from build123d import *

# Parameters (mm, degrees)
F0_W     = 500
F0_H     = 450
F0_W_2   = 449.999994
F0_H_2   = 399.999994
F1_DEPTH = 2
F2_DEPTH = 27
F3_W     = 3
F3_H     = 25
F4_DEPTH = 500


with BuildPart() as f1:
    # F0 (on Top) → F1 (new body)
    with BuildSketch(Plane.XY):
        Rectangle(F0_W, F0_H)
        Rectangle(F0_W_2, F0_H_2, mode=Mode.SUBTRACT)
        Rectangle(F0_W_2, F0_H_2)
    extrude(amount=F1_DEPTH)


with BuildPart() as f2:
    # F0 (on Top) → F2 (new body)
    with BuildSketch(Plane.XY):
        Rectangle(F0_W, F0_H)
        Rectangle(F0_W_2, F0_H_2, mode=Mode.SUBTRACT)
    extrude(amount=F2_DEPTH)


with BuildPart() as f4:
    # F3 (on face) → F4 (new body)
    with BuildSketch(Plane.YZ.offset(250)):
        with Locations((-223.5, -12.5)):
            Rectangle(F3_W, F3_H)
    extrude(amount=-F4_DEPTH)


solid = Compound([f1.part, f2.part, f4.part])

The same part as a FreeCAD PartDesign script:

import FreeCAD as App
import Part
import Sketcher

doc = App.newDocument("Part")
body = doc.addObject("PartDesign::Body", "Body")

sketch1 = doc.addObject("Sketcher::SketchObject", "Sketch")
body.addObject(sketch1)
sketch1.AttachmentSupport = (doc.XY_Plane, [""])
sketch1.MapMode = "FlatFace"
sketch1.addGeometry(Part.LineSegment(App.Vector(-250, 225, 0), App.Vector(-250, -225, 0)), False)
sketch1.addGeometry(Part.LineSegment(App.Vector(-250, -225, 0), App.Vector(250, -225, 0)), False)
sketch1.addGeometry(Part.LineSegment(App.Vector(250, -225, 0), App.Vector(250, 225, 0)), False)
sketch1.addGeometry(Part.LineSegment(App.Vector(250, 225, 0), App.Vector(-250, 225, 0)), False)
sketch1.addConstraint(Sketcher.Constraint("Coincident", 0, 2, 1, 1))
sketch1.addConstraint(Sketcher.Constraint("Coincident", 1, 2, 2, 1))
sketch1.addConstraint(Sketcher.Constraint("Coincident", 2, 2, 3, 1))
sketch1.addConstraint(Sketcher.Constraint("Coincident", 3, 2, 0, 1))
sketch1.addConstraint(Sketcher.Constraint("Vertical", 0))
sketch1.addConstraint(Sketcher.Constraint("Horizontal", 1))
sketch1.addConstraint(Sketcher.Constraint("Vertical", 2))
sketch1.addConstraint(Sketcher.Constraint("Horizontal", 3))
sketch1.addConstraint(Sketcher.Constraint("Symmetric", 0, 2, 2, 2, -1, 1))
sketch1.addConstraint(Sketcher.Constraint("DistanceX", 1, 1, 1, 2, 500.0))
sketch1.addConstraint(Sketcher.Constraint("DistanceY", 0, 2, 0, 1, 450.0))
pad1 = doc.addObject("PartDesign::Pad", "Pad")
body.addObject(pad1)
pad1.Profile = sketch1
pad1.Length = 2
body2 = doc.addObject("PartDesign::Body", "Body001")

sketch2 = doc.addObject("Sketcher::SketchObject", "Sketch001")
body2.addObject(sketch2)
sketch2.AttachmentSupport = (doc.getObject("XY_Plane001"), [""])
sketch2.MapMode = "FlatFace"
sketch2.addGeometry(Part.LineSegment(App.Vector(-250, 225, 0), App.Vector(-250, -225, 0)), False)
sketch2.addGeometry(Part.LineSegment(App.Vector(-250, -225, 0), App.Vector(250, -225, 0)), False)
sketch2.addGeometry(Part.LineSegment(App.Vector(250, -225, 0), App.Vector(250, 225, 0)), False)
sketch2.addGeometry(Part.LineSegment(App.Vector(250, 225, 0), App.Vector(-250, 225, 0)), False)
sketch2.addGeometry(Part.LineSegment(App.Vector(225, -200, 0), App.Vector(-225, -200, 0)), False)
sketch2.addGeometry(Part.LineSegment(App.Vector(-225, -200, 0), App.Vector(-225, 200, 0)), False)
sketch2.addGeometry(Part.LineSegment(App.Vector(-225, 200, 0), App.Vector(225, 200, 0)), False)
sketch2.addGeometry(Part.LineSegment(App.Vector(225, 200, 0), App.Vector(225, -200, 0)), False)
sketch2.addConstraint(Sketcher.Constraint("Coincident", 0, 2, 1, 1))
sketch2.addConstraint(Sketcher.Constraint("Coincident", 1, 2, 2, 1))
sketch2.addConstraint(Sketcher.Constraint("Coincident", 2, 2, 3, 1))
sketch2.addConstraint(Sketcher.Constraint("Coincident", 3, 2, 0, 1))
sketch2.addConstraint(Sketcher.Constraint("Coincident", 4, 2, 5, 1))
sketch2.addConstraint(Sketcher.Constraint("Coincident", 5, 2, 6, 1))
sketch2.addConstraint(Sketcher.Constraint("Coincident", 6, 2, 7, 1))
sketch2.addConstraint(Sketcher.Constraint("Coincident", 7, 2, 4, 1))
sketch2.addConstraint(Sketcher.Constraint("Vertical", 0))
sketch2.addConstraint(Sketcher.Constraint("Horizontal", 1))
sketch2.addConstraint(Sketcher.Constraint("Vertical", 2))
sketch2.addConstraint(Sketcher.Constraint("Horizontal", 3))
sketch2.addConstraint(Sketcher.Constraint("Horizontal", 4))
sketch2.addConstraint(Sketcher.Constraint("Vertical", 5))
sketch2.addConstraint(Sketcher.Constraint("Horizontal", 6))
sketch2.addConstraint(Sketcher.Constraint("Vertical", 7))
sketch2.addConstraint(Sketcher.Constraint("Symmetric", 0, 2, 2, 2, -1, 1))
sketch2.addConstraint(Sketcher.Constraint("Symmetric", 4, 2, 6, 2, -1, 1))
sketch2.addConstraint(Sketcher.Constraint("DistanceX", 1, 1, 1, 2, 500.0))
sketch2.addConstraint(Sketcher.Constraint("DistanceY", 0, 2, 0, 1, 450.0))
sketch2.addConstraint(Sketcher.Constraint("DistanceX", 4, 2, 4, 1, 449.999994))
sketch2.addConstraint(Sketcher.Constraint("DistanceY", 5, 1, 5, 2, 399.999994))
pad2 = doc.addObject("PartDesign::Pad", "Pad001")
body2.addObject(pad2)
pad2.Profile = sketch2
pad2.Length = 27
body3 = doc.addObject("PartDesign::Body", "Body002")

sketch3 = doc.addObject("Sketcher::SketchObject", "Sketch002")
body3.addObject(sketch3)
sketch3.AttachmentSupport = (doc.getObject("YZ_Plane002"), [""])
sketch3.MapMode = "FlatFace"
sketch3.AttachmentOffset = App.Placement(App.Vector(0, 0, 250), App.Rotation())
sketch3.addGeometry(Part.LineSegment(App.Vector(-225, 0, 0), App.Vector(-225, -25, 0)), False)
sketch3.addGeometry(Part.LineSegment(App.Vector(-225, -25, 0), App.Vector(-222, -25, 0)), False)
sketch3.addGeometry(Part.LineSegment(App.Vector(-222, -25, 0), App.Vector(-222, 0, 0)), False)
sketch3.addGeometry(Part.LineSegment(App.Vector(-222, 0, 0), App.Vector(-225, 0, 0)), False)
sketch3.addConstraint(Sketcher.Constraint("Coincident", 0, 2, 1, 1))
sketch3.addConstraint(Sketcher.Constraint("Coincident", 1, 2, 2, 1))
sketch3.addConstraint(Sketcher.Constraint("Coincident", 2, 2, 3, 1))
sketch3.addConstraint(Sketcher.Constraint("Coincident", 3, 2, 0, 1))
sketch3.addConstraint(Sketcher.Constraint("Vertical", 0))
sketch3.addConstraint(Sketcher.Constraint("Horizontal", 1))
sketch3.addConstraint(Sketcher.Constraint("Vertical", 2))
sketch3.addConstraint(Sketcher.Constraint("Horizontal", 3))
sketch3.addConstraint(Sketcher.Constraint("PointOnObject", 2, 2, -1))
sketch3.addConstraint(Sketcher.Constraint("DistanceX", 1, 1, 1, 2, 3.0))
sketch3.addConstraint(Sketcher.Constraint("DistanceY", 0, 2, 0, 1, 25.0))
sketch3.addConstraint(Sketcher.Constraint("DistanceX", 0, 2, -1, 1, 225.0))
pad3 = doc.addObject("PartDesign::Pad", "Pad002")
body3.addObject(pad3)
pad3.Profile = sketch3
pad3.Length = 500
pad3.Reversed = True

doc.recompute()
